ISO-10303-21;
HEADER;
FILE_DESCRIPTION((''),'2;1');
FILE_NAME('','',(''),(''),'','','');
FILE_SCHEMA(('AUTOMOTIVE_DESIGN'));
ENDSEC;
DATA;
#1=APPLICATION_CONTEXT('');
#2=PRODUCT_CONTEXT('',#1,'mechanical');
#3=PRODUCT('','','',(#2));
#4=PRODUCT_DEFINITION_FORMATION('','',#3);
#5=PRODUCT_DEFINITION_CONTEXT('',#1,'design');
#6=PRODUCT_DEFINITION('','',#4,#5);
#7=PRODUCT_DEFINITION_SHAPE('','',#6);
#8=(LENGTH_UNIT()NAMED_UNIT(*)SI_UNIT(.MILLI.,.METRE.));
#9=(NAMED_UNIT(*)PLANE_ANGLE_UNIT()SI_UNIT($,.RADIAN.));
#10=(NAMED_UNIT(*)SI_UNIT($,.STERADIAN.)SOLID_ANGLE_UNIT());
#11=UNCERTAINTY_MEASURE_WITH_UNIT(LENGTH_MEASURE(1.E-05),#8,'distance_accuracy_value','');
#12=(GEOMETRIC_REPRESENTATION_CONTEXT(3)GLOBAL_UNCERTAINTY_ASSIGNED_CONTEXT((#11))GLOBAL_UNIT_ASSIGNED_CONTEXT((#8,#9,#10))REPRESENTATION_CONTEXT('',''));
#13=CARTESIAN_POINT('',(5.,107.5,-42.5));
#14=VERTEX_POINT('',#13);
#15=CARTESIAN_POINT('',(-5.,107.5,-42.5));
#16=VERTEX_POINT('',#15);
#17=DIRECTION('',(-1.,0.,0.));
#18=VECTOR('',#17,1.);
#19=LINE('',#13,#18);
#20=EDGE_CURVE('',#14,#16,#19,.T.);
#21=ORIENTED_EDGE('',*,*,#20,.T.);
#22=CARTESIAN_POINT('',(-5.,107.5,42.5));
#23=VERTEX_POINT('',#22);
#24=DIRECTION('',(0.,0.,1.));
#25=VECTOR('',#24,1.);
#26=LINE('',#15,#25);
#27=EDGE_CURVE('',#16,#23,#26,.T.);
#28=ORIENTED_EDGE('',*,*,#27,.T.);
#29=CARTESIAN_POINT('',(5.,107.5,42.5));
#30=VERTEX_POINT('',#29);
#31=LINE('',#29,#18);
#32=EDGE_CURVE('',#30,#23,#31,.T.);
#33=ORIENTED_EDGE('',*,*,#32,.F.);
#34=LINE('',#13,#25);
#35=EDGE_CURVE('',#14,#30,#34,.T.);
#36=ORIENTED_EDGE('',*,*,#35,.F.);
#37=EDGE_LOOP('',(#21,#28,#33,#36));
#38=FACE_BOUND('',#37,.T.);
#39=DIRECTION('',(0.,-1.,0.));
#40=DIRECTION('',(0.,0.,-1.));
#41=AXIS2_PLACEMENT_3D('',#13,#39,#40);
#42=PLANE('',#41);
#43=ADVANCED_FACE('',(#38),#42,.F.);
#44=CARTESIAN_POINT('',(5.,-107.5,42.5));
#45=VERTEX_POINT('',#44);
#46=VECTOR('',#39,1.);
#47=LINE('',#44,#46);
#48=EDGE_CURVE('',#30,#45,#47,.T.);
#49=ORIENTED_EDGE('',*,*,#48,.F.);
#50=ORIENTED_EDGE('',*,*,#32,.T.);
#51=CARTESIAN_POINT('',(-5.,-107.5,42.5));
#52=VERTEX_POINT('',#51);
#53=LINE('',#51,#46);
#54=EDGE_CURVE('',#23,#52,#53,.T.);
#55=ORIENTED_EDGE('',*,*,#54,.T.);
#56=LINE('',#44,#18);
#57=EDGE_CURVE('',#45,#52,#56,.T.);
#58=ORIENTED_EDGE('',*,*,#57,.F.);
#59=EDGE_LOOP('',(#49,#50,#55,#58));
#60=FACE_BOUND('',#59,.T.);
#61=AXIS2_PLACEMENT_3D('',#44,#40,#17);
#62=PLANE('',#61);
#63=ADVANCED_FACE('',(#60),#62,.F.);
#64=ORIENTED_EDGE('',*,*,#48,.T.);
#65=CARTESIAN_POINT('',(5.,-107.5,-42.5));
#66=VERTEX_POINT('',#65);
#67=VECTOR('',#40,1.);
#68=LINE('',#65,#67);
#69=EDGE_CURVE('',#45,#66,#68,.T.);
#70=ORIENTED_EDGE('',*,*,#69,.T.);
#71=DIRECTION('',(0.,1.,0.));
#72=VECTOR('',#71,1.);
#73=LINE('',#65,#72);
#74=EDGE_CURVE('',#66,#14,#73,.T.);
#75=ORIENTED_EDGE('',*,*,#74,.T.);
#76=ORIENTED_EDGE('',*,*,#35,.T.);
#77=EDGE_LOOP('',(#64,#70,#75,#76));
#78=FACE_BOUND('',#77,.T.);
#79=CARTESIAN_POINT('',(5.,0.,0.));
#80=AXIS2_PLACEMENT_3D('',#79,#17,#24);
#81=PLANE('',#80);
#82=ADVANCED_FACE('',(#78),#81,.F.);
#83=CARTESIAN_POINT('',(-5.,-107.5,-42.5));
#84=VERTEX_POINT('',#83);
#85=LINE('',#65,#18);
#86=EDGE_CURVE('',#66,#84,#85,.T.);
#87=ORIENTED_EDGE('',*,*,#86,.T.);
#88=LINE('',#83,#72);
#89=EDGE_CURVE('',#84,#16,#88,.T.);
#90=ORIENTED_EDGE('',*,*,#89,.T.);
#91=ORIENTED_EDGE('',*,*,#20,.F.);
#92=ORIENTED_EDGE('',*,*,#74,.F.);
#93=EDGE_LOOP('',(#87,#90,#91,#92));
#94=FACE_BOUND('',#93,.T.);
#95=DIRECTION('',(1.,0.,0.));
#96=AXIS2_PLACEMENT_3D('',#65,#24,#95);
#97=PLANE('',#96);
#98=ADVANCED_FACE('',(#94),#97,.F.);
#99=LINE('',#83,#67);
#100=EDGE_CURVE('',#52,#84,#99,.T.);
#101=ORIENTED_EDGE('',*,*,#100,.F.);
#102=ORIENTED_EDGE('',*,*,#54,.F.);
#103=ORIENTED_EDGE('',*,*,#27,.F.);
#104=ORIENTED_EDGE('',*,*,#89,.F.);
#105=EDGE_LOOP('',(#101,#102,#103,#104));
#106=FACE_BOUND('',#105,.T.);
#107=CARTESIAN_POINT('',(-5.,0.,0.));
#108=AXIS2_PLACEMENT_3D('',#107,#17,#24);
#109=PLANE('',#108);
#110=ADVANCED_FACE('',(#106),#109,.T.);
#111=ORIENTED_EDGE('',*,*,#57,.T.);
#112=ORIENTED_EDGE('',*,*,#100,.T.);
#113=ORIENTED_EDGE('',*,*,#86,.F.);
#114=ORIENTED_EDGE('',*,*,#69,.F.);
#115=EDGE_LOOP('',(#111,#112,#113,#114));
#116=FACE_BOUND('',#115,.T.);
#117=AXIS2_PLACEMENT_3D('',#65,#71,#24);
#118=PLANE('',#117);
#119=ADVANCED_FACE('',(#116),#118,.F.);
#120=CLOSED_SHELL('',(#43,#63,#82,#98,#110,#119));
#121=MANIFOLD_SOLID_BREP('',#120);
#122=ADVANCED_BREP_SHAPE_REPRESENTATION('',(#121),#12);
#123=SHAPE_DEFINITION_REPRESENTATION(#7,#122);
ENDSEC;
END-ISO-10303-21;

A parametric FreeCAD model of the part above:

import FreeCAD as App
import Part
import Sketcher
from FreeCAD import Vector
Q = App.Units.Quantity

doc = App.newDocument("Part")
body = doc.addObject("PartDesign::Body", "Body")

# Sketch on YZ plane
sketch1 = body.newObject("Sketcher::SketchObject", "Sketch")
sketch1.AttachmentSupport = (doc.getObject("YZ_Plane"), [""])
sketch1.MapMode = "FlatFace"
sketch1.addGeometry(Part.LineSegment(Vector(-107.5, 42.5, 0), Vector(-107.5, -42.5, 0)), False)
sketch1.addGeometry(Part.LineSegment(Vector(-107.5, -42.5, 0), Vector(107.5, -42.5, 0)), False)
sketch1.addGeometry(Part.LineSegment(Vector(107.5, -42.5, 0), Vector(107.5, 42.5, 0)), False)
sketch1.addGeometry(Part.LineSegment(Vector(107.5, 42.5, 0), Vector(-107.5, 42.5, 0)), False)
sketch1.addConstraint(Sketcher.Constraint("Coincident", 0, 2, 1, 1))
sketch1.addConstraint(Sketcher.Constraint("Coincident", 1, 2, 2, 1))
sketch1.addConstraint(Sketcher.Constraint("Coincident", 2, 2, 3, 1))
sketch1.addConstraint(Sketcher.Constraint("Coincident", 3, 2, 0, 1))
sketch1.addConstraint(Sketcher.Constraint("Vertical", 0))
sketch1.addConstraint(Sketcher.Constraint("Horizontal", 1))
sketch1.addConstraint(Sketcher.Constraint("Vertical", 2))
sketch1.addConstraint(Sketcher.Constraint("Horizontal", 3))
sketch1.addConstraint(Sketcher.Constraint("Symmetric", 0, 2, 2, 2, -1, 1))
sketch1.addConstraint(Sketcher.Constraint("DistanceX", 1, 1, 1, 2, Q("215 mm")))
sketch1.addConstraint(Sketcher.Constraint("DistanceY", 0, 2, 0, 1, Q("85 mm")))
pad1 = body.newObject("PartDesign::Pad", "Pad")
pad1.Profile = sketch1
pad1.Length = 10
pad1.Midplane = True

doc.recompute()
